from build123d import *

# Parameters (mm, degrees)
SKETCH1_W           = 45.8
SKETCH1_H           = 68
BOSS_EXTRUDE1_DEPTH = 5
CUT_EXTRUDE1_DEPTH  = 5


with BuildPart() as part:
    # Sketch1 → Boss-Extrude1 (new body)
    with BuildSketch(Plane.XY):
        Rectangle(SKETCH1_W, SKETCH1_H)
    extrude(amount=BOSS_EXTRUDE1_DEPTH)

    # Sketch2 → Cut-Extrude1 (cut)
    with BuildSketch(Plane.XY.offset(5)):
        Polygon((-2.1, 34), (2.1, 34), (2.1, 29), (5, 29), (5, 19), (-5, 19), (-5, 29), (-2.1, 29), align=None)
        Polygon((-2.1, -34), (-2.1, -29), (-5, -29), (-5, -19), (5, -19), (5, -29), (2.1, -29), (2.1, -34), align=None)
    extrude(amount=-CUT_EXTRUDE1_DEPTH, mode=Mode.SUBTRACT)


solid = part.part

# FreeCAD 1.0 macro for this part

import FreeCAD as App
import Part
import Sketcher
Q = App.Units.Quantity


def add_polygon(sketch, points):
    """Adds a closed chain of lines whose ends are joined by coincident constraints."""
    first, n = sketch.GeometryCount, len(points)
    for a, b in zip(points, points[1:] + points[:1]):
        sketch.addGeometry(Part.LineSegment(App.Vector(*a, 0), App.Vector(*b, 0)), False)
    for i in range(n):
        sketch.addConstraint(Sketcher.Constraint("Coincident", first + i, 2, first + (i + 1) % n, 1))

doc = App.newDocument("Part")
body = doc.addObject("PartDesign::Body", "Body")

# Sketch on XY plane
sketch1 = doc.addObject("Sketcher::SketchObject", "Sketch")
body.addObject(sketch1)
sketch1.AttachmentSupport = (doc.XY_Plane, [""])
sketch1.MapMode = "FlatFace"
add_polygon(sketch1, [(-22.9, 34), (-22.9, -34), (22.9, -34), (22.9, 34)])  # lines 0-3
sketch1.addConstraint([
    Sketcher.Constraint("Vertical", 0),
    Sketcher.Constraint("Horizontal", 1),
    Sketcher.Constraint("Vertical", 2),
    Sketcher.Constraint("Horizontal", 3),
    Sketcher.Constraint("Symmetric", 0, 2, 2, 2, -1, 1),
    Sketcher.Constraint("DistanceY", 0, 2, 0, 1, Q("68 mm")),
    Sketcher.Constraint("DistanceX", 1, 1, 1, 2, Q("45.8 mm")),
])
pad1 = doc.addObject("PartDesign::Pad", "Pad")
body.addObject(pad1)
pad1.Profile = sketch1
pad1.Length = 5

# Sketch on XY plane
sketch2 = doc.addObject("Sketcher::SketchObject", "Sketch001")
body.addObject(sketch2)
sketch2.AttachmentSupport = (doc.XY_Plane, [""])
sketch2.MapMode = "FlatFace"
sketch2.AttachmentOffset = App.Placement(App.Vector(0, 0, 5), App.Rotation())
add_polygon(sketch2, [(2.1, 34), (-2.1, 34), (-2.1, 29), (-5, 29), (-5, 19), (5, 19), (5, 29), (2.1, 29)])  # lines 0-7
add_polygon(sketch2, [(-2.1, -29), (-2.1, -34), (2.1, -34), (2.1, -29), (5, -29), (5, -19), (-5, -19), (-5, -29)])  # lines 8-15
sketch2.addConstraint([
    Sketcher.Constraint("Horizontal", 0),
    Sketcher.Constraint("Vertical", 1),
    Sketcher.Constraint("Horizontal", 2),
    Sketcher.Constraint("Vertical", 3),
    Sketcher.Constraint("Horizontal", 4),
    Sketcher.Constraint("Vertical", 5),
    Sketcher.Constraint("Horizontal", 6),
    Sketcher.Constraint("Vertical", 7),
    Sketcher.Constraint("Vertical", 8),
    Sketcher.Constraint("Horizontal", 9),
    Sketcher.Constraint("Vertical", 10),
    Sketcher.Constraint("Horizontal", 11),
    Sketcher.Constraint("Vertical", 12),
    Sketcher.Constraint("Horizontal", 13),
    Sketcher.Constraint("Vertical", 14),
    Sketcher.Constraint("Horizontal", 15),
    Sketcher.Constraint("Symmetric", 7, 2, 8, 2, -1, 1),
    Sketcher.Constraint("Symmetric", 1, 2, 10, 2, -1, 1),
    Sketcher.Constraint("Symmetric", 3, 2, 12, 2, -1, 1),
    Sketcher.Constraint("Symmetric", 5, 2, 14, 2, -1, 1),
    Sketcher.Constraint("Symmetric", 2, 2, 5, 2, -2),
    Sketcher.Constraint("Vertical", 1, 2, 8, 2),
    Sketcher.Constraint("Equal", 13, 3),
    Sketcher.Constraint("DistanceX", 4, 1, 4, 2, Q("10 mm")),
    Sketcher.Constraint("DistanceY", 1, 2, 1, 1, Q("5 mm")),
    Sketcher.Constraint("DistanceX", 0, 2, 0, 1, Q("4.2 mm")),
    Sketcher.Constraint("DistanceY", -1, 1, 0, 2, Q("34 mm")),
])
pocket1 = doc.addObject("PartDesign::Pocket", "Pocket")
body.addObject(pocket1)
pocket1.Profile = sketch2
pocket1.Length = 5

doc.recompute()
